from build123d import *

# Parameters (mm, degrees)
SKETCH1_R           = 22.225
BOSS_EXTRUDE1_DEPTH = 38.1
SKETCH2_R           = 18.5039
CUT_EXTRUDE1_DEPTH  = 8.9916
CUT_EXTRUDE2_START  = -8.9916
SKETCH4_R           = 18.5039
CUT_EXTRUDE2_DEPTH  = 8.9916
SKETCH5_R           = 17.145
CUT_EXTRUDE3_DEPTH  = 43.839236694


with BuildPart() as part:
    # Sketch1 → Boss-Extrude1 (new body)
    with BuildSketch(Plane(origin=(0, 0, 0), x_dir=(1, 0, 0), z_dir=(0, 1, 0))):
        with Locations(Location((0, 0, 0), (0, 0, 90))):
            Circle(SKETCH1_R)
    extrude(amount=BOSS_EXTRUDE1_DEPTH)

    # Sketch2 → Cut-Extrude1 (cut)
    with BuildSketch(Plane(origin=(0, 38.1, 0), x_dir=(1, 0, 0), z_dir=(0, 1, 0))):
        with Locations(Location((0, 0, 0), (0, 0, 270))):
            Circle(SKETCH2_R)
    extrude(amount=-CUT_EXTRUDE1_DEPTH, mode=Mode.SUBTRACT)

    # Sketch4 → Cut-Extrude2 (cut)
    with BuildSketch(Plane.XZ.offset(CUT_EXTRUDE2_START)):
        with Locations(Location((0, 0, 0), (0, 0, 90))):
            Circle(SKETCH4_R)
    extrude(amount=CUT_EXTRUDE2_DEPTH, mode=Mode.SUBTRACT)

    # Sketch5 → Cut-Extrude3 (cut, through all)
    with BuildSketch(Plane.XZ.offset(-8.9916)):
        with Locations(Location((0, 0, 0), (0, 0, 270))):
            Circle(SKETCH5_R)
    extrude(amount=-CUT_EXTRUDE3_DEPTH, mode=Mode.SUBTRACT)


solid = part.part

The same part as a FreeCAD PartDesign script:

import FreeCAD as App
import Part
import Sketcher

V = App.Vector
Q = App.Units.Quantity

doc = App.newDocument("Part")
body = doc.addObject("PartDesign::Body", "Body")

sketch1 = doc.addObject("Sketcher::SketchObject", "Sketch")
body.addObject(sketch1)
sketch1.AttachmentSupport = (doc.XZ_Plane, [""])
sketch1.MapMode = "FlatFace"
sketch1.addGeometry(Part.Circle(V(0, 0, 0), V(0, 0, 1), 22.225), False)
sketch1.addConstraint(Sketcher.Constraint("Coincident", 0, 3, -1, 1))
sketch1.addConstraint(Sketcher.Constraint("Diameter", 0, Q("1.75 in")))
pad1 = doc.addObject("PartDesign::Pad", "Pad")
body.addObject(pad1)
pad1.Profile = sketch1
pad1.Length = Q("1.5 in")
pad1.Reversed = True

sketch2 = doc.addObject("Sketcher::SketchObject", "Sketch001")
body.addObject(sketch2)
sketch2.AttachmentSupport = (doc.XZ_Plane, [""])
sketch2.MapMode = "FlatFace"
sketch2.AttachmentOffset = App.Placement(V(0, 0, -1.5 * 25.4), App.Rotation())
sketch2.addGeometry(Part.Circle(V(0, 0, 0), V(0, 0, 1), 18.5039), False)
sketch2.addConstraint(Sketcher.Constraint("Coincident", 0, 3, -1, 1))
sketch2.addConstraint(Sketcher.Constraint("Diameter", 0, Q("1.457 in")))
pocket1 = doc.addObject("PartDesign::Pocket", "Pocket")
body.addObject(pocket1)
pocket1.Profile = sketch2
pocket1.Length = Q("0.354 in")
pocket1.Reversed = True

sketch3 = doc.addObject("Sketcher::SketchObject", "Sketch002")
body.addObject(sketch3)
sketch3.AttachmentSupport = (doc.XZ_Plane, [""])
sketch3.MapMode = "FlatFace"
sketch3.AttachmentOffset = App.Placement(V(0, 0, -0.354 * 25.4), App.Rotation())
sketch3.addGeometry(Part.Circle(V(0, 0, 0), V(0, 0, 1), 18.5039), False)
sketch3.addConstraint(Sketcher.Constraint("Coincident", 0, 3, -1, 1))
sketch3.addConstraint(Sketcher.Constraint("Diameter", 0, Q("1.457 in")))
pocket2 = doc.addObject("PartDesign::Pocket", "Pocket001")
body.addObject(pocket2)
pocket2.Profile = sketch3
pocket2.Length = Q("0.354 in")
pocket2.Reversed = True

sketch4 = doc.addObject("Sketcher::SketchObject", "Sketch003")
body.addObject(sketch4)
sketch4.AttachmentSupport = (doc.XZ_Plane, [""])
sketch4.MapMode = "FlatFace"
sketch4.AttachmentOffset = App.Placement(V(0, 0, -0.354 * 25.4), App.Rotation())
sketch4.addGeometry(Part.Circle(V(0, 0, 0), V(0, 0, 1), 17.145), False)
sketch4.addConstraint(Sketcher.Constraint("Coincident", 0, 3, -1, 1))
sketch4.addConstraint(Sketcher.Constraint("Diameter", 0, Q("1.35 in")))
pocket3 = doc.addObject("PartDesign::Pocket", "Pocket002")
body.addObject(pocket3)
pocket3.Profile = sketch4
pocket3.Type = "ThroughAll"

doc.recompute()
